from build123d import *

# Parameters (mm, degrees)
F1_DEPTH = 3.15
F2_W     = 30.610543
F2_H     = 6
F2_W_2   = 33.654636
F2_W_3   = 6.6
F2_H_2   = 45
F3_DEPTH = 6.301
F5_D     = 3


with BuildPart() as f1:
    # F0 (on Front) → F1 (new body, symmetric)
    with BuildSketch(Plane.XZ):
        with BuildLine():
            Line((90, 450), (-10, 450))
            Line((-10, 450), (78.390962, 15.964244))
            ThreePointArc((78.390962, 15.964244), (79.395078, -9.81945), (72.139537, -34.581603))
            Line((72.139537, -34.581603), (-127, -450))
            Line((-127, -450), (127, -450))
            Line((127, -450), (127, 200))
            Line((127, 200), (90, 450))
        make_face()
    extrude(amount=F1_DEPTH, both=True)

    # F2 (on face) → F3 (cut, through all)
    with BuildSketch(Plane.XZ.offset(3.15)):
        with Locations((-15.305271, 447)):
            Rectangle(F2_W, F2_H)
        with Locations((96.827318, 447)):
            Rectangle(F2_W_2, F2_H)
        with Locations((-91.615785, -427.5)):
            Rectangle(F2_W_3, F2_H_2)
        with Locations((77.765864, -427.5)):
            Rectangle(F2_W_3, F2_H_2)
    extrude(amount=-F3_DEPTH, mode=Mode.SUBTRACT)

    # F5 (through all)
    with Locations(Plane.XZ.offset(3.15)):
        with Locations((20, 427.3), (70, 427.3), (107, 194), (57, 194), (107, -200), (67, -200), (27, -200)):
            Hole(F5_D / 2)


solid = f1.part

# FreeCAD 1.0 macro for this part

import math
import FreeCAD as App
import Part
import Sketcher
Q = App.Units.Quantity

doc = App.newDocument("Part")
body = doc.addObject("PartDesign::Body", "Body")

sketch1 = body.newObject("Sketcher::SketchObject", "Sketch")
sketch1.AttachmentSupport = (doc.getObject("XZ_Plane"), [""])
sketch1.MapMode = "FlatFace"
sketch1.addGeometry([
    Part.LineSegment(App.Vector(90, 450, 0), App.Vector(-10, 450, 0)),
    Part.LineSegment(App.Vector(-10, 450, 0), App.Vector(78, 16, 0)),
    Part.ArcOfCircle(Part.Circle(App.Vector(0, 0, 0), App.Vector(0, 0, 1), 80), math.radians(-26), math.radians(12)),
    Part.LineSegment(App.Vector(72, -35, 0), App.Vector(-127, -450, 0)),
    Part.LineSegment(App.Vector(-127, -450, 0), App.Vector(127, -450, 0)),
    Part.LineSegment(App.Vector(127, -450, 0), App.Vector(127, 200, 0)),
    Part.LineSegment(App.Vector(127, 200, 0), App.Vector(90, 450, 0)),
], False)
sketch1.addConstraint([
    Sketcher.Constraint("Coincident", 0, 2, 1, 1),
    Sketcher.Constraint("Tangent", 1, 2, 2, 2),
    Sketcher.Constraint("Tangent", 2, 1, 3, 1),
    Sketcher.Constraint("Coincident", 3, 2, 4, 1),
    Sketcher.Constraint("Coincident", 4, 2, 5, 1),
    Sketcher.Constraint("Coincident", 5, 2, 6, 1),
    Sketcher.Constraint("Coincident", 6, 2, 0, 1),
    Sketcher.Constraint("Horizontal", 0),
    Sketcher.Constraint("Horizontal", 4),
    Sketcher.Constraint("Vertical", 5),
    Sketcher.Constraint("Coincident", 2, 3, -1, 1),
    Sketcher.Constraint("DistanceX", 0, 2, 0, 1, Q("100 mm")),
    Sketcher.Constraint("DistanceX", 4, 1, 4, 2, Q("254 mm")),
    Sketcher.Constraint("DistanceY", 5, 1, 5, 2, Q("650 mm")),
    Sketcher.Constraint("DistanceX", 0, 2, -1, 1, Q("10 mm")),
    Sketcher.Constraint("DistanceY", -1, 1, 0, 2, Q("450 mm")),
    Sketcher.Constraint("DistanceX", 3, 2, -1, 1, Q("127 mm")),
    Sketcher.Constraint("DistanceY", 3, 2, -1, 1, Q("450 mm")),
    Sketcher.Constraint("Radius", 2, Q("80.000003 mm")),
])
pad1 = body.newObject("PartDesign::Pad", "Pad")
pad1.Profile = sketch1
pad1.Length = 6.3
pad1.Midplane = True

sketch2 = body.newObject("Sketcher::SketchObject", "Sketch001")
sketch2.AttachmentSupport = (doc.getObject("XZ_Plane"), [""])
sketch2.MapMode = "FlatFace"
sketch2.AttachmentOffset = App.Placement(App.Vector(0, 0, 3.15), App.Rotation())
sketch2.addGeometry([
    Part.LineSegment(App.Vector(-31, 450, 0), App.Vector(-31, 444, 0)),
    Part.LineSegment(App.Vector(-31, 444, 0), App.Vector(0, 444, 0)),
    Part.LineSegment(App.Vector(0, 444, 0), App.Vector(0, 450, 0)),
    Part.LineSegment(App.Vector(0, 450, 0), App.Vector(-31, 450, 0)),
    Part.LineSegment(App.Vector(80, 450, 0), App.Vector(80, 444, 0)),
    Part.LineSegment(App.Vector(80, 444, 0), App.Vector(114, 444, 0)),
    Part.LineSegment(App.Vector(114, 444, 0), App.Vector(114, 450, 0)),
    Part.LineSegment(App.Vector(114, 450, 0), App.Vector(80, 450, 0)),
    Part.LineSegment(App.Vector(-95, -405, 0), App.Vector(-95, -450, 0)),
    Part.LineSegment(App.Vector(-95, -450, 0), App.Vector(-88, -450, 0)),
    Part.LineSegment(App.Vector(-88, -450, 0), App.Vector(-88, -405, 0)),
    Part.LineSegment(App.Vector(-88, -405, 0), App.Vector(-95, -405, 0)),
    Part.LineSegment(App.Vector(74, -405, 0), App.Vector(74, -450, 0)),
    Part.LineSegment(App.Vector(74, -450, 0), App.Vector(81, -450, 0)),
    Part.LineSegment(App.Vector(81, -450, 0), App.Vector(81, -405, 0)),
    Part.LineSegment(App.Vector(81, -405, 0), App.Vector(74, -405, 0)),
], False)
sketch2.addConstraint([
    Sketcher.Constraint("Coincident", 0, 2, 1, 1),
    Sketcher.Constraint("Coincident", 1, 2, 2, 1),
    Sketcher.Constraint("Coincident", 2, 2, 3, 1),
    Sketcher.Constraint("Coincident", 3, 2, 0, 1),
    Sketcher.Constraint("Coincident", 4, 2, 5, 1),
    Sketcher.Constraint("Coincident", 5, 2, 6, 1),
    Sketcher.Constraint("Coincident", 6, 2, 7, 1),
    Sketcher.Constraint("Coincident", 7, 2, 4, 1),
    Sketcher.Constraint("Coincident", 8, 2, 9, 1),
    Sketcher.Constraint("Coincident", 9, 2, 10, 1),
    Sketcher.Constraint("Coincident", 10, 2, 11, 1),
    Sketcher.Constraint("Coincident", 11, 2, 8, 1),
    Sketcher.Constraint("Coincident", 12, 2, 13, 1),
    Sketcher.Constraint("Coincident", 13, 2, 14, 1),
    Sketcher.Constraint("Coincident", 14, 2, 15, 1),
    Sketcher.Constraint("Coincident", 15, 2, 12, 1),
    Sketcher.Constraint("Vertical", 0),
    Sketcher.Constraint("Horizontal", 1),
    Sketcher.Constraint("Vertical", 2),
    Sketcher.Constraint("Horizontal", 3),
    Sketcher.Constraint("Vertical", 4),
    Sketcher.Constraint("Horizontal", 5),
    Sketcher.Constraint("Vertical", 6),
    Sketcher.Constraint("Horizontal", 7),
    Sketcher.Constraint("Vertical", 8),
    Sketcher.Constraint("Horizontal", 9),
    Sketcher.Constraint("Vertical", 10),
    Sketcher.Constraint("Horizontal", 11),
    Sketcher.Constraint("Vertical", 12),
    Sketcher.Constraint("Horizontal", 13),
    Sketcher.Constraint("Vertical", 14),
    Sketcher.Constraint("Horizontal", 15),
    Sketcher.Constraint("PointOnObject", 1, 2, -2),
    Sketcher.Constraint("Horizontal", 1, 2, 4, 2),
    Sketcher.Constraint("Horizontal", 3, 2, 6, 2),
    Sketcher.Constraint("Horizontal", 9, 2, 12, 2),
    Sketcher.Constraint("Horizontal", 11, 2, 14, 2),
    Sketcher.Constraint("Equal", 11, 13),
    Sketcher.Constraint("DistanceY", 0, 2, 0, 1, Q("6 mm")),
    Sketcher.Constraint("DistanceY", 8, 2, 8, 1, Q("45 mm")),
    Sketcher.Constraint("DistanceX", 9, 1, 9, 2, Q("6.6 mm")),
    Sketcher.Constraint("DistanceY", -1, 1, 0, 2, Q("444 mm")),
    Sketcher.Constraint("DistanceX", -1, 1, 4, 2, Q("80 mm")),
    Sketcher.Constraint("DistanceY", 8, 2, -1, 1, Q("450 mm")),
    Sketcher.Constraint("DistanceX", 1, 1, 1, 2, Q("30.610543 mm")),
    Sketcher.Constraint("DistanceX", 5, 1, 5, 2, Q("33.654636 mm")),
    Sketcher.Constraint("DistanceX", 9, 2, 12, 2, Q("162.781649 mm")),
    Sketcher.Constraint("DistanceX", 8, 2, -1, 1, Q("94.915785 mm")),
])
pocket1 = body.newObject("PartDesign::Pocket", "Pocket")
pocket1.Profile = sketch2
pocket1.Type = "ThroughAll"

sketch3 = body.newObject("Sketcher::SketchObject", "Sketch002")
sketch3.AttachmentSupport = (doc.getObject("XZ_Plane"), [""])
sketch3.MapMode = "FlatFace"
sketch3.AttachmentOffset = App.Placement(App.Vector(0, 0, 3.15), App.Rotation())
sketch3.addGeometry([
    Part.Circle(App.Vector(20, 427.3, 0), App.Vector(0, 0, 1), 1.5),
    Part.Circle(App.Vector(70, 427.3, 0), App.Vector(0, 0, 1), 1.5),
    Part.Circle(App.Vector(107, 194, 0), App.Vector(0, 0, 1), 1.5),
    Part.Circle(App.Vector(57, 194, 0), App.Vector(0, 0, 1), 1.5),
    Part.Circle(App.Vector(107, -200, 0), App.Vector(0, 0, 1), 1.5),
    Part.Circle(App.Vector(67, -200, 0), App.Vector(0, 0, 1), 1.5),
    Part.Circle(App.Vector(27, -200, 0), App.Vector(0, 0, 1), 1.5),
], False)
sketch3.addConstraint([
    Sketcher.Constraint("Equal", 0, 1),
    Sketcher.Constraint("Equal", 1, 2),
    Sketcher.Constraint("Equal", 2, 3),
    Sketcher.Constraint("Equal", 3, 4),
    Sketcher.Constraint("Equal", 4, 5),
    Sketcher.Constraint("Equal", 5, 6),
    Sketcher.Constraint("Horizontal", 0, 3, 1, 3),
    Sketcher.Constraint("Horizontal", 2, 3, 3, 3),
    Sketcher.Constraint("Horizontal", 4, 3, 5, 3),
    Sketcher.Constraint("Horizontal", 5, 3, 6, 3),
    Sketcher.Constraint("Vertical", 2, 3, 4, 3),
    Sketcher.Constraint("Diameter", 0, Q("3 mm")),
    Sketcher.Constraint("DistanceX", -1, 1, 0, 3, Q("20 mm")),
    Sketcher.Constraint("DistanceX", -1, 1, 1, 3, Q("70 mm")),
    Sketcher.Constraint("DistanceX", -1, 1, 2, 3, Q("107 mm")),
    Sketcher.Constraint("DistanceY", -1, 1, 2, 3, Q("194 mm")),
    Sketcher.Constraint("DistanceX", -1, 1, 3, 3, Q("57 mm")),
    Sketcher.Constraint("DistanceY", 4, 3, -1, 1, Q("200 mm")),
    Sketcher.Constraint("DistanceX", -1, 1, 5, 3, Q("67 mm")),
    Sketcher.Constraint("DistanceX", -1, 1, 6, 3, Q("27 mm")),
    Sketcher.Constraint("DistanceY", -1, 1, 0, 3, Q("427.3 mm")),
])
doc.recompute()
hole = body.newObject("PartDesign::Hole", "Hole")
hole.Profile = sketch3
hole.ThreadType = "None"
hole.Diameter = 3
hole.DepthType = "ThroughAll"

doc.recompute()
